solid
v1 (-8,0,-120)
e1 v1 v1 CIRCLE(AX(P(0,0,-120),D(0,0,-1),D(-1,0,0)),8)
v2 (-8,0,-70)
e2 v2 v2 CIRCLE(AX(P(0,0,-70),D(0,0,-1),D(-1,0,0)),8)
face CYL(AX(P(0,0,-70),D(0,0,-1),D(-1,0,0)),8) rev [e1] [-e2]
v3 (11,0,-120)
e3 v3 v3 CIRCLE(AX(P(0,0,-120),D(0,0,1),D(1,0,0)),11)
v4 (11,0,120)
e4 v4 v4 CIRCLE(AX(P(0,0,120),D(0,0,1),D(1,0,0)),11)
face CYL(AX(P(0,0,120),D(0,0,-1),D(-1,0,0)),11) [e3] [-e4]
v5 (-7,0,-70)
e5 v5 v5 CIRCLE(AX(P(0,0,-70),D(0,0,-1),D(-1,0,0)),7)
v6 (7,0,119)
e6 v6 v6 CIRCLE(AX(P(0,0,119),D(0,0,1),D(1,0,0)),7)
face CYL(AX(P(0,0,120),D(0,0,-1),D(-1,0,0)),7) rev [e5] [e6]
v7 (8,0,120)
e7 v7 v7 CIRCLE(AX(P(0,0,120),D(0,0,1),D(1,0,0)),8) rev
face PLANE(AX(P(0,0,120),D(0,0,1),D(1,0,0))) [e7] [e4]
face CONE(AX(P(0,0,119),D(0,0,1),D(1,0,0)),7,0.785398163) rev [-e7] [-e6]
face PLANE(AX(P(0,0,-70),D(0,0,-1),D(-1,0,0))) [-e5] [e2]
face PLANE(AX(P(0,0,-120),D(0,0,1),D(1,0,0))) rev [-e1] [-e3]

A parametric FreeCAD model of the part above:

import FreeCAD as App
import Part
import Sketcher

V = App.Vector


def edges_at(feature, points):
    """Names of the edges that pass closest to the given points."""
    edges = feature.Shape.Edges
    near = lambda p: min(range(len(edges)), key=lambda i: edges[i].distToShape(Part.Vertex(*p))[0])
    return sorted({f"Edge{near(p) + 1}" for p in points})

doc = App.newDocument("Part")
body = doc.addObject("PartDesign::Body", "Body")

# Sketch on XY plane
sketch1 = body.newObject("Sketcher::SketchObject", "Sketch")
sketch1.AttachmentSupport = (doc.getObject("XY_Plane"), [""])
sketch1.MapMode = "FlatFace"
sketch1.addGeometry(Part.Circle(V(0, 0, 0), V(0, 0, 1), 11), False)
sketch1.addGeometry(Part.Circle(V(0, 0, 0), V(0, 0, 1), 7), False)
sketch1.addConstraint(Sketcher.Constraint("Coincident", 0, 3, -1, 1))
sketch1.addConstraint(Sketcher.Constraint("Coincident", 1, 3, -1, 1))
sketch1.addConstraint(Sketcher.Constraint("Diameter", 0, 22.0))
sketch1.addConstraint(Sketcher.Constraint("Diameter", 1, 14.0))
pad1 = body.newObject("PartDesign::Pad", "Pad")
pad1.Profile = sketch1
pad1.Length = 240
pad1.Midplane = True

# Sketch on XY plane
sketch2 = body.newObject("Sketcher::SketchObject", "Sketch001")
sketch2.AttachmentSupport = (doc.getObject("XY_Plane"), [""])
sketch2.MapMode = "FlatFace"
sketch2.AttachmentOffset = App.Placement(V(0, 0, -120), App.Rotation())
sketch2.addGeometry(Part.Circle(V(0, 0, 0), V(0, 0, 1), 8), False)
sketch2.addConstraint(Sketcher.Constraint("Coincident", 0, 3, -1, 1))
sketch2.addConstraint(Sketcher.Constraint("Diameter", 0, 16.0))
pocket1 = body.newObject("PartDesign::Pocket", "Pocket")
pocket1.Profile = sketch2
pocket1.Length = 50
pocket1.Reversed = True
doc.recompute()

chamfer = body.newObject("PartDesign::Chamfer", "Chamfer")
chamfer.Base = (pocket1, edges_at(pocket1, [(-7, 0, 120)]))
chamfer.Size = 1

doc.recompute()
